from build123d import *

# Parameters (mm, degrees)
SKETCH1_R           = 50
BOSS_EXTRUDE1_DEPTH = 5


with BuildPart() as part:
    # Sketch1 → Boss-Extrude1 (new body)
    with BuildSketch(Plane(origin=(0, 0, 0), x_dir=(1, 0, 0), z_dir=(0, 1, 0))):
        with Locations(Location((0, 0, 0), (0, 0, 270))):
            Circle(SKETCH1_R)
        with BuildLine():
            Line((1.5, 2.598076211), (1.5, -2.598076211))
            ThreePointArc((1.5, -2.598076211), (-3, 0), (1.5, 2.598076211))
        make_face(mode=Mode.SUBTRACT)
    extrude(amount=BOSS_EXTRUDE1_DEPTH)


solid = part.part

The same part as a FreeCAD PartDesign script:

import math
import FreeCAD as App
import Part
import Sketcher

V = App.Vector

doc = App.newDocument("Part")
body = doc.addObject("PartDesign::Body", "Body")

# Sketch on XZ plane
sketch1 = body.newObject("Sketcher::SketchObject", "Sketch")
sketch1.AttachmentSupport = (doc.getObject("XZ_Plane"), [""])
sketch1.MapMode = "FlatFace"
sketch1.addGeometry(Part.Circle(V(0, 0, 0), V(0, 0, 1), 50), False)
sketch1.addGeometry(Part.ArcOfCircle(Part.Circle(V(0, 0, 0), V(0, 0, 1), 3), math.radians(60), math.radians(300)), False)
sketch1.addGeometry(Part.LineSegment(V(1.5, -2.6, 0), V(1.5, 2.6, 0)), False)
sketch1.addConstraint(Sketcher.Constraint("Coincident", 1, 1, 2, 2))
sketch1.addConstraint(Sketcher.Constraint("Coincident", 2, 1, 1, 2))
sketch1.addConstraint(Sketcher.Constraint("Vertical", 2))
sketch1.addConstraint(Sketcher.Constraint("Coincident", 0, 3, -1, 1))
sketch1.addConstraint(Sketcher.Constraint("Coincident", 1, 3, -1, 1))
sketch1.addConstraint(Sketcher.Constraint("Diameter", 0, 100.0))
sketch1.addConstraint(Sketcher.Constraint("Radius", 1, 3.0))
sketch1.addConstraint(Sketcher.Constraint("DistanceX", -1, 1, 1, 1, 1.5))
pad1 = body.newObject("PartDesign::Pad", "Pad")
pad1.Profile = sketch1
pad1.Length = 5
pad1.Reversed = True

doc.recompute()
